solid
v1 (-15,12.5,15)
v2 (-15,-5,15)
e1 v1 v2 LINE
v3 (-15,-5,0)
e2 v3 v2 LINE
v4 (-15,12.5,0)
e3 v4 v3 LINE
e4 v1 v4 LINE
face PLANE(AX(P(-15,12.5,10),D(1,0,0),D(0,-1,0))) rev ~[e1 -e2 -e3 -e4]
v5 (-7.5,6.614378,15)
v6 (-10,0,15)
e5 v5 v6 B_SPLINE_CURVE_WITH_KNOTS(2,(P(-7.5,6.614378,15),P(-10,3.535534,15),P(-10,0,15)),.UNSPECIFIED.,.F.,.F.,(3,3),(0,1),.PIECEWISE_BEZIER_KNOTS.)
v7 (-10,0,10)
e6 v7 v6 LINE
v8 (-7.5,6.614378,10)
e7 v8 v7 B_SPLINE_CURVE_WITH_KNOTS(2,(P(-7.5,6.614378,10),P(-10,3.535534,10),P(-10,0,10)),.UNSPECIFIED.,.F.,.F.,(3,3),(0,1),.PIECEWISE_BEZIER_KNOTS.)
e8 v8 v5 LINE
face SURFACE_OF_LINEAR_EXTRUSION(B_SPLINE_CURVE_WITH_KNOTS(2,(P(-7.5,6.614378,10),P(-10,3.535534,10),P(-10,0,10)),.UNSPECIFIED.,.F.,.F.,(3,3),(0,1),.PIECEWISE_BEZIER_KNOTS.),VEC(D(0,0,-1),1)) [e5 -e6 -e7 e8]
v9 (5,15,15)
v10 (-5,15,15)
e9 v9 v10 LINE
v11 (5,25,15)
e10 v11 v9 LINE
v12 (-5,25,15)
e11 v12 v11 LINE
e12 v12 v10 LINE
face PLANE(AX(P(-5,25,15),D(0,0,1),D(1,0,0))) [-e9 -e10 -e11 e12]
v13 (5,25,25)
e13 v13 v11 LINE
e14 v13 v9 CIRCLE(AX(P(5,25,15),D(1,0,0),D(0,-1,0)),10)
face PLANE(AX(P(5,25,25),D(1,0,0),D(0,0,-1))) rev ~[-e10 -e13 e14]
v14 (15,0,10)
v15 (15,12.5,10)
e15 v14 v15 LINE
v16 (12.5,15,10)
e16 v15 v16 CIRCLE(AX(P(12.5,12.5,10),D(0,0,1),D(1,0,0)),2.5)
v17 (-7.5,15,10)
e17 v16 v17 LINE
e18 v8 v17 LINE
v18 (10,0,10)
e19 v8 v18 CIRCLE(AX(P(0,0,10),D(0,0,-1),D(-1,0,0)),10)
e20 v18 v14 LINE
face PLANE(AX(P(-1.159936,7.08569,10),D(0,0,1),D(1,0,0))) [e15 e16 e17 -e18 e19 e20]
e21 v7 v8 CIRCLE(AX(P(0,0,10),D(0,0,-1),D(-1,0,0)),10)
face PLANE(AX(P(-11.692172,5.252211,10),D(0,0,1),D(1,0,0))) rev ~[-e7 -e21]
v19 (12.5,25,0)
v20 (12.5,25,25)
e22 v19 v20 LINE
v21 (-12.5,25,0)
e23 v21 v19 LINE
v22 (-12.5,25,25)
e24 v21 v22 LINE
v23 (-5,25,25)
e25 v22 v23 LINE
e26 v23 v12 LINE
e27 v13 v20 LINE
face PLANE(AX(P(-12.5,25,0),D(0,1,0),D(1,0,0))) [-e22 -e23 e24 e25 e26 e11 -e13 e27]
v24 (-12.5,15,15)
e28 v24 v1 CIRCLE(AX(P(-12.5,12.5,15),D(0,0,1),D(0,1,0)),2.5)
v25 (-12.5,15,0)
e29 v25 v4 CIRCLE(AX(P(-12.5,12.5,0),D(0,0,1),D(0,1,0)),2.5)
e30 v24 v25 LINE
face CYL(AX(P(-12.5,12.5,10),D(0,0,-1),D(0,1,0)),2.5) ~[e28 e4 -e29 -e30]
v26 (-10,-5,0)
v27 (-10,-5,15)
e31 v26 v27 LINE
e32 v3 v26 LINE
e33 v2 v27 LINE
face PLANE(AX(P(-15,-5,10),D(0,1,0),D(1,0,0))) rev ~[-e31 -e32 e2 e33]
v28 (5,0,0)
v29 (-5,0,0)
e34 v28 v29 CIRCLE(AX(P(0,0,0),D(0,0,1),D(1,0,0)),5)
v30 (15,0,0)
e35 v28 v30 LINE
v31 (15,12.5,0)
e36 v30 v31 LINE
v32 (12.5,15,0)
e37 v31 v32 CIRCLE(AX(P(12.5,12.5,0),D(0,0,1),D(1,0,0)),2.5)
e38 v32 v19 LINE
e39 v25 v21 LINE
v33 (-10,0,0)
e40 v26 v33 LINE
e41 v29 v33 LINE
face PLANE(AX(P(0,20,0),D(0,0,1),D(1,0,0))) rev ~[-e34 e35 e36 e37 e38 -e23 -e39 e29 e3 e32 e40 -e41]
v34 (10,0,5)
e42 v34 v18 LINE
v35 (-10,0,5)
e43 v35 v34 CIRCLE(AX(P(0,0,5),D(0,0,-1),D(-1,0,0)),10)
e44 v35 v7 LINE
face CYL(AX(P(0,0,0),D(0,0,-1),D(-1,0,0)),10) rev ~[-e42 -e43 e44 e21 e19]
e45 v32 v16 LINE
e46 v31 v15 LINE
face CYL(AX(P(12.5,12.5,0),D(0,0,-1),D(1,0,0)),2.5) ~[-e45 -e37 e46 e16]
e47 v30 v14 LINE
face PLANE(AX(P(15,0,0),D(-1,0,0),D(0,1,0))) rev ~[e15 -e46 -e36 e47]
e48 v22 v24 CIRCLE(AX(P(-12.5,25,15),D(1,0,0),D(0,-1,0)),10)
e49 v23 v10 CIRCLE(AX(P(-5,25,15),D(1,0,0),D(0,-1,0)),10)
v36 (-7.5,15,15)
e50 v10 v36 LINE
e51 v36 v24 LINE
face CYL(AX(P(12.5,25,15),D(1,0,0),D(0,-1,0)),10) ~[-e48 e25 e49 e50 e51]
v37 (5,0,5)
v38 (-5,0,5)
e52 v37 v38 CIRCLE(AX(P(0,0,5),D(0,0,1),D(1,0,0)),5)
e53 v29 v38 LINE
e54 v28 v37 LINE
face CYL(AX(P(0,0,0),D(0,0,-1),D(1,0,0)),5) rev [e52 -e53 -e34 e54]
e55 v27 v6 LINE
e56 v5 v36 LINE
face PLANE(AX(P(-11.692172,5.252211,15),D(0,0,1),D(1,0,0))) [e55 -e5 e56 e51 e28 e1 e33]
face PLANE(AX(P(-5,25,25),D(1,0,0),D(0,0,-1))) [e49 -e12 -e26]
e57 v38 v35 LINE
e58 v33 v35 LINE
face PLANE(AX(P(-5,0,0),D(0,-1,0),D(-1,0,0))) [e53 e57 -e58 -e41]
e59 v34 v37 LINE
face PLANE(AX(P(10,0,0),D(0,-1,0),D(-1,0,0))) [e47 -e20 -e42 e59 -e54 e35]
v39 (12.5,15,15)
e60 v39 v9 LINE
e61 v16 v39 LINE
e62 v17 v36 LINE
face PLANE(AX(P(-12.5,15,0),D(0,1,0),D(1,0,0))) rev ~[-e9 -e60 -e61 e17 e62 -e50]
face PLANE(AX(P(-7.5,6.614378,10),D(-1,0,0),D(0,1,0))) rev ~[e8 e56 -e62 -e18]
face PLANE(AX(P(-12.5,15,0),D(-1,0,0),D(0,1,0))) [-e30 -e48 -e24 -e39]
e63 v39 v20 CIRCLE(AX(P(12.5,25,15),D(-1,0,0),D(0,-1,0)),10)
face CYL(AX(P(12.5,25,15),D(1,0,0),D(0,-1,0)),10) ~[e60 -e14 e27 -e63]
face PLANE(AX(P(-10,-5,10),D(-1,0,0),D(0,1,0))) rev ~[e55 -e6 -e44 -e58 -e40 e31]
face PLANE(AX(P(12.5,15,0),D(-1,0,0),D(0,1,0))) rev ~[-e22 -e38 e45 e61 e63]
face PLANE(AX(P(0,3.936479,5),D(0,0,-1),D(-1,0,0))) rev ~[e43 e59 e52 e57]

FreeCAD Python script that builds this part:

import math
import FreeCAD as App
import Part
import Sketcher

V = App.Vector
Q = App.Units.Quantity


def add_polygon(sketch, points):
    """Adds a closed chain of lines whose ends are joined by coincident constraints."""
    first, n = sketch.GeometryCount, len(points)
    for a, b in zip(points, points[1:] + points[:1]):
        sketch.addGeometry(Part.LineSegment(App.Vector(*a, 0), App.Vector(*b, 0)), False)
    for i in range(n):
        sketch.addConstraint(Sketcher.Constraint("Coincident", first + i, 2, first + (i + 1) % n, 1))

doc = App.newDocument("Part")
params = doc.addObject("Spreadsheet::Sheet", "Params")
for row, (alias, value) in enumerate([
    ("sketch1_radius", "10 mm"),
    ("sketch1_radius2", "2.5 mm"),
    ("sketch1_width", "5 mm"),
    ("sketch1_height", "12.5 mm"),
    ("pad1_length", "10 mm"),
    ("sketch2_radius", "10 mm"),
    ("sketch2_radius2", "5 mm"),
    ("pad2_length", "5 mm"),
    ("sketch3_width", "5 mm"),
    ("sketch3_height", "17.5 mm"),
    ("pad3_length", "5 mm"),
    ("sketch4_width", "25 mm"),
    ("sketch4_height", "10 mm"),
    ("pad4_length", "25 mm"),
    ("sketch5_radius", "10 mm"),
    ("sketch6_width", "10 mm"),
    ("pocket2_length", "25 mm"),
], start=1):
    params.set(f"A{row}", alias)
    params.set(f"B{row}", "=" + value)
    params.setAlias(f"B{row}", alias)

body = doc.addObject("PartDesign::Body", "Body")

sketch1 = doc.addObject("Sketcher::SketchObject", "Sketch")
body.addObject(sketch1)
sketch1.AttachmentSupport = (doc.XY_Plane, [""])
sketch1.MapMode = "FlatFace"
sketch1.addGeometry(Part.LineSegment(V(10, 0, 0), V(15, 0, 0)), False)
sketch1.addGeometry(Part.LineSegment(V(15, 0, 0), V(15, 12.5, 0)), False)
sketch1.addGeometry(Part.ArcOfCircle(Part.Circle(V(12.5, 12.5, 0), V(0, 0, 1), 2.5), math.radians(0), math.radians(90)), False)
sketch1.addGeometry(Part.LineSegment(V(12.5, 15, 0), V(-12.5, 15, 0)), False)
sketch1.addGeometry(Part.ArcOfCircle(Part.Circle(V(-12.5, 12.5, 0), V(0, 0, 1), 2.5), math.radians(90), math.radians(180)), False)
sketch1.addGeometry(Part.LineSegment(V(-15, 12.5, 0), V(-15, -5, 0)), False)
sketch1.addGeometry(Part.LineSegment(V(-15, -5, 0), V(-10, -5, 0)), False)
sketch1.addGeometry(Part.LineSegment(V(-10, -5, 0), V(-10, 0, 0)), False)
sketch1.addGeometry(Part.ArcOfCircle(Part.Circle(V(0, 0, 0), V(0, 0, 1), 10), math.radians(0), math.radians(180)), False)
sketch1.addConstraint(Sketcher.Constraint("Coincident", 0, 2, 1, 1))
sketch1.addConstraint(Sketcher.Constraint("Tangent", 1, 2, 2, 1))
sketch1.addConstraint(Sketcher.Constraint("Tangent", 2, 2, 3, 1))
sketch1.addConstraint(Sketcher.Constraint("Tangent", 3, 2, 4, 1))
sketch1.addConstraint(Sketcher.Constraint("Tangent", 4, 2, 5, 1))
sketch1.addConstraint(Sketcher.Constraint("Coincident", 5, 2, 6, 1))
sketch1.addConstraint(Sketcher.Constraint("Coincident", 6, 2, 7, 1))
sketch1.addConstraint(Sketcher.Constraint("Tangent", 7, 2, 8, 2))
sketch1.addConstraint(Sketcher.Constraint("Coincident", 8, 1, 0, 1))
sketch1.addConstraint(Sketcher.Constraint("Horizontal", 0))
sketch1.addConstraint(Sketcher.Constraint("Vertical", 1))
sketch1.addConstraint(Sketcher.Constraint("Horizontal", 3))
sketch1.addConstraint(Sketcher.Constraint("Vertical", 5))
sketch1.addConstraint(Sketcher.Constraint("Horizontal", 6))
sketch1.addConstraint(Sketcher.Constraint("Vertical", 7))
sketch1.addConstraint(Sketcher.Constraint("Coincident", 8, 3, -1, 1))
sketch1.addConstraint(Sketcher.Constraint("Equal", 2, 4))
sketch1.addConstraint(Sketcher.Constraint("PointOnObject", 0, 2, -1))
sketch1.addConstraint(Sketcher.Constraint("Equal", 0, 6))
sketch1.addConstraint(Sketcher.Constraint("Equal", 6, 7))
sketch1.addConstraint(Sketcher.Constraint("Radius", 8, Q("10 mm")))
sketch1.addConstraint(Sketcher.Constraint("Radius", 2, Q("2.5 mm")))
sketch1.addConstraint(Sketcher.Constraint("DistanceX", 0, 1, 0, 2, Q("5 mm")))
sketch1.addConstraint(Sketcher.Constraint("DistanceY", 1, 1, 1, 2, Q("12.5 mm")))
sketch1.setExpression("Constraints[20]", "Params.sketch1_radius")
sketch1.setExpression("Constraints[21]", "Params.sketch1_radius2")
sketch1.setExpression("Constraints[22]", "Params.sketch1_width")
sketch1.setExpression("Constraints[23]", "Params.sketch1_height")
pad1 = doc.addObject("PartDesign::Pad", "Pad")
body.addObject(pad1)
pad1.Profile = sketch1
pad1.setExpression("Length", "Params.pad1_length")

sketch2 = doc.addObject("Sketcher::SketchObject", "Sketch001")
body.addObject(sketch2)
sketch2.AttachmentSupport = (doc.XY_Plane, [""])
sketch2.MapMode = "FlatFace"
sketch2.addGeometry(Part.ArcOfCircle(Part.Circle(V(0, 0, 0), V(0, 0, 1), 10), math.radians(0), math.radians(180)), False)
sketch2.addGeometry(Part.LineSegment(V(-10, 0, 0), V(-5, 0, 0)), False)
sketch2.addGeometry(Part.ArcOfCircle(Part.Circle(V(0, 0, 0), V(0, 0, 1), 5), math.radians(0), math.radians(180)), False)
sketch2.addGeometry(Part.LineSegment(V(5, 0, 0), V(10, 0, 0)), False)
sketch2.addConstraint(Sketcher.Constraint("Coincident", 0, 2, 1, 1))
sketch2.addConstraint(Sketcher.Constraint("Coincident", 1, 2, 2, 2))
sketch2.addConstraint(Sketcher.Constraint("Coincident", 2, 1, 3, 1))
sketch2.addConstraint(Sketcher.Constraint("Coincident", 3, 2, 0, 1))
sketch2.addConstraint(Sketcher.Constraint("Horizontal", 1))
sketch2.addConstraint(Sketcher.Constraint("Horizontal", 3))
sketch2.addConstraint(Sketcher.Constraint("Coincident", 0, 3, -1, 1))
sketch2.addConstraint(Sketcher.Constraint("Coincident", 2, 3, -1, 1))
sketch2.addConstraint(Sketcher.Constraint("PointOnObject", 0, 2, -1))
sketch2.addConstraint(Sketcher.Constraint("PointOnObject", 2, 1, -1))
sketch2.addConstraint(Sketcher.Constraint("Radius", 0, Q("10 mm")))
sketch2.addConstraint(Sketcher.Constraint("Radius", 2, Q("5 mm")))
sketch2.setExpression("Constraints[10]", "Params.sketch2_radius")
sketch2.setExpression("Constraints[11]", "Params.sketch2_radius2")
pad2 = doc.addObject("PartDesign::Pad", "Pad001")
body.addObject(pad2)
pad2.Profile = sketch2
pad2.setExpression("Length", "Params.pad2_length")

sketch3 = doc.addObject("Sketcher::SketchObject", "Sketch002")
body.addObject(sketch3)
sketch3.AttachmentSupport = (doc.XY_Plane, [""])
sketch3.MapMode = "FlatFace"
sketch3.AttachmentOffset = App.Placement(V(0, 0, 10), App.Rotation())
sketch3.addGeometry(Part.LineSegment(V(-15, 12.5, 0), V(-15, -5, 0)), False)
sketch3.addGeometry(Part.LineSegment(V(-15, -5, 0), V(-10, -5, 0)), False)
sketch3.addGeometry(Part.LineSegment(V(-10, -5, 0), V(-10, 0, 0)), False)
sketch3.addGeometry(Part.BSplineCurve([V(-7.5, 6.614378, 0), V(-10, 3.535534, 0), V(-10, 0, 0)], [3, 3], [0, 1], False, 2, [1, 1, 1], False), False)
sketch3.addGeometry(Part.LineSegment(V(-7.5, 6.614378, 0), V(-7.5, 15, 0)), False)
sketch3.addGeometry(Part.LineSegment(V(-7.5, 15, 0), V(-12.5, 15, 0)), False)
sketch3.addGeometry(Part.ArcOfCircle(Part.Circle(V(-12.5, 12.5, 0), V(0, 0, 1), 2.5), math.radians(90), math.radians(180)), False)
sketch3.addConstraint(Sketcher.Constraint("Block", 3))
sketch3.addConstraint(Sketcher.Constraint("Coincident", 0, 2, 1, 1))
sketch3.addConstraint(Sketcher.Constraint("Coincident", 1, 2, 2, 1))
sketch3.addConstraint(Sketcher.Constraint("Coincident", 2, 2, 3, 2))
sketch3.addConstraint(Sketcher.Constraint("Coincident", 3, 1, 4, 1))
sketch3.addConstraint(Sketcher.Constraint("Coincident", 4, 2, 5, 1))
sketch3.addConstraint(Sketcher.Constraint("Tangent", 5, 2, 6, 1))
sketch3.addConstraint(Sketcher.Constraint("Tangent", 6, 2, 0, 1))
sketch3.addConstraint(Sketcher.Constraint("Vertical", 0))
sketch3.addConstraint(Sketcher.Constraint("Horizontal", 1))
sketch3.addConstraint(Sketcher.Constraint("Vertical", 2))
sketch3.addConstraint(Sketcher.Constraint("Vertical", 4))
sketch3.addConstraint(Sketcher.Constraint("Horizontal", 5))
sketch3.addConstraint(Sketcher.Constraint("Equal", 1, 5))
sketch3.addConstraint(Sketcher.Constraint("Equal", 5, 2))
sketch3.addConstraint(Sketcher.Constraint("DistanceX", 1, 1, 1, 2, Q("5 mm")))
sketch3.addConstraint(Sketcher.Constraint("DistanceY", 0, 2, 0, 1, Q("17.5 mm")))
sketch3.setExpression("Constraints[15]", "Params.sketch3_width")
sketch3.setExpression("Constraints[16]", "Params.sketch3_height")
pad3 = doc.addObject("PartDesign::Pad", "Pad002")
body.addObject(pad3)
pad3.Profile = sketch3
pad3.setExpression("Length", "Params.pad3_length")

sketch4 = doc.addObject("Sketcher::SketchObject", "Sketch003")
body.addObject(sketch4)
sketch4.AttachmentSupport = (doc.XY_Plane, [""])
sketch4.MapMode = "FlatFace"
add_polygon(sketch4, [(-12, 25), (-12, 15), (12, 15), (12, 25)])
sketch4.addConstraint(Sketcher.Constraint("Vertical", 0))
sketch4.addConstraint(Sketcher.Constraint("Horizontal", 1))
sketch4.addConstraint(Sketcher.Constraint("Vertical", 2))
sketch4.addConstraint(Sketcher.Constraint("Horizontal", 3))
sketch4.addConstraint(Sketcher.Constraint("DistanceX", 1, 1, 1, 2, Q("25 mm")))
sketch4.addConstraint(Sketcher.Constraint("DistanceY", 0, 2, 0, 1, Q("10 mm")))
sketch4.addConstraint(Sketcher.Constraint("DistanceY", -1, 1, 0, 2, Q("15 mm")))
sketch4.addConstraint(Sketcher.Constraint("DistanceX", 0, 2, -1, 1, Q("12.5 mm")))
sketch4.setExpression("Constraints[8]", "Params.sketch4_width")
sketch4.setExpression("Constraints[9]", "Params.sketch4_height")
pad4 = doc.addObject("PartDesign::Pad", "Pad003")
body.addObject(pad4)
pad4.Profile = sketch4
pad4.setExpression("Length", "Params.pad4_length")

sketch5 = doc.addObject("Sketcher::SketchObject", "Sketch004")
body.addObject(sketch5)
sketch5.AttachmentSupport = (doc.YZ_Plane, [""])
sketch5.MapMode = "FlatFace"
sketch5.AttachmentOffset = App.Placement(V(0, 0, 12.5), App.Rotation())
sketch5.addGeometry(Part.LineSegment(V(25, 25, 0), V(15, 25, 0)), False)
sketch5.addGeometry(Part.LineSegment(V(15, 25, 0), V(15, 15, 0)), False)
sketch5.addGeometry(Part.ArcOfCircle(Part.Circle(V(25, 15, 0), V(0, 0, 1), 10), math.radians(90), math.radians(180)), False)
sketch5.addConstraint(Sketcher.Constraint("Coincident", 0, 2, 1, 1))
sketch5.addConstraint(Sketcher.Constraint("Tangent", 1, 2, 2, 2))
sketch5.addConstraint(Sketcher.Constraint("Tangent", 2, 1, 0, 1))
sketch5.addConstraint(Sketcher.Constraint("Horizontal", 0))
sketch5.addConstraint(Sketcher.Constraint("Vertical", 1))
sketch5.addConstraint(Sketcher.Constraint("Radius", 2, Q("10 mm")))
sketch5.addConstraint(Sketcher.Constraint("DistanceX", -1, 1, 2, 3, Q("25 mm")))
sketch5.addConstraint(Sketcher.Constraint("DistanceY", -1, 1, 2, 3, Q("15 mm")))
sketch5.setExpression("Constraints[5]", "Params.sketch5_radius")
pocket1 = doc.addObject("PartDesign::Pocket", "Pocket")
body.addObject(pocket1)
pocket1.Profile = sketch5
pocket1.Type = "ThroughAll"

sketch6 = doc.addObject("Sketcher::SketchObject", "Sketch005")
body.addObject(sketch6)
sketch6.AttachmentSupport = (doc.XZ_Plane, [""])
sketch6.MapMode = "FlatFace"
sketch6.AttachmentOffset = App.Placement(V(0, 0, -25), App.Rotation())
add_polygon(sketch6, [(-5, 15), (-5, 25), (5, 25), (5, 15)])
sketch6.addConstraint(Sketcher.Constraint("Vertical", 0))
sketch6.addConstraint(Sketcher.Constraint("Horizontal", 1))
sketch6.addConstraint(Sketcher.Constraint("Vertical", 2))
sketch6.addConstraint(Sketcher.Constraint("Horizontal", 3))
sketch6.addConstraint(Sketcher.Constraint("Equal", 3, 0))
sketch6.addConstraint(Sketcher.Constraint("DistanceX", 1, 1, 1, 2, Q("10 mm")))
sketch6.addConstraint(Sketcher.Constraint("DistanceX", 0, 2, -1, 1, Q("5 mm")))
sketch6.addConstraint(Sketcher.Constraint("DistanceY", -1, 1, 0, 2, Q("25 mm")))
sketch6.setExpression("Constraints[9]", "Params.sketch6_width")
pocket2 = doc.addObject("PartDesign::Pocket", "Pocket001")
body.addObject(pocket2)
pocket2.Profile = sketch6
pocket2.setExpression("Length", "Params.pocket2_length")
pocket2.Reversed = True

doc.recompute()
